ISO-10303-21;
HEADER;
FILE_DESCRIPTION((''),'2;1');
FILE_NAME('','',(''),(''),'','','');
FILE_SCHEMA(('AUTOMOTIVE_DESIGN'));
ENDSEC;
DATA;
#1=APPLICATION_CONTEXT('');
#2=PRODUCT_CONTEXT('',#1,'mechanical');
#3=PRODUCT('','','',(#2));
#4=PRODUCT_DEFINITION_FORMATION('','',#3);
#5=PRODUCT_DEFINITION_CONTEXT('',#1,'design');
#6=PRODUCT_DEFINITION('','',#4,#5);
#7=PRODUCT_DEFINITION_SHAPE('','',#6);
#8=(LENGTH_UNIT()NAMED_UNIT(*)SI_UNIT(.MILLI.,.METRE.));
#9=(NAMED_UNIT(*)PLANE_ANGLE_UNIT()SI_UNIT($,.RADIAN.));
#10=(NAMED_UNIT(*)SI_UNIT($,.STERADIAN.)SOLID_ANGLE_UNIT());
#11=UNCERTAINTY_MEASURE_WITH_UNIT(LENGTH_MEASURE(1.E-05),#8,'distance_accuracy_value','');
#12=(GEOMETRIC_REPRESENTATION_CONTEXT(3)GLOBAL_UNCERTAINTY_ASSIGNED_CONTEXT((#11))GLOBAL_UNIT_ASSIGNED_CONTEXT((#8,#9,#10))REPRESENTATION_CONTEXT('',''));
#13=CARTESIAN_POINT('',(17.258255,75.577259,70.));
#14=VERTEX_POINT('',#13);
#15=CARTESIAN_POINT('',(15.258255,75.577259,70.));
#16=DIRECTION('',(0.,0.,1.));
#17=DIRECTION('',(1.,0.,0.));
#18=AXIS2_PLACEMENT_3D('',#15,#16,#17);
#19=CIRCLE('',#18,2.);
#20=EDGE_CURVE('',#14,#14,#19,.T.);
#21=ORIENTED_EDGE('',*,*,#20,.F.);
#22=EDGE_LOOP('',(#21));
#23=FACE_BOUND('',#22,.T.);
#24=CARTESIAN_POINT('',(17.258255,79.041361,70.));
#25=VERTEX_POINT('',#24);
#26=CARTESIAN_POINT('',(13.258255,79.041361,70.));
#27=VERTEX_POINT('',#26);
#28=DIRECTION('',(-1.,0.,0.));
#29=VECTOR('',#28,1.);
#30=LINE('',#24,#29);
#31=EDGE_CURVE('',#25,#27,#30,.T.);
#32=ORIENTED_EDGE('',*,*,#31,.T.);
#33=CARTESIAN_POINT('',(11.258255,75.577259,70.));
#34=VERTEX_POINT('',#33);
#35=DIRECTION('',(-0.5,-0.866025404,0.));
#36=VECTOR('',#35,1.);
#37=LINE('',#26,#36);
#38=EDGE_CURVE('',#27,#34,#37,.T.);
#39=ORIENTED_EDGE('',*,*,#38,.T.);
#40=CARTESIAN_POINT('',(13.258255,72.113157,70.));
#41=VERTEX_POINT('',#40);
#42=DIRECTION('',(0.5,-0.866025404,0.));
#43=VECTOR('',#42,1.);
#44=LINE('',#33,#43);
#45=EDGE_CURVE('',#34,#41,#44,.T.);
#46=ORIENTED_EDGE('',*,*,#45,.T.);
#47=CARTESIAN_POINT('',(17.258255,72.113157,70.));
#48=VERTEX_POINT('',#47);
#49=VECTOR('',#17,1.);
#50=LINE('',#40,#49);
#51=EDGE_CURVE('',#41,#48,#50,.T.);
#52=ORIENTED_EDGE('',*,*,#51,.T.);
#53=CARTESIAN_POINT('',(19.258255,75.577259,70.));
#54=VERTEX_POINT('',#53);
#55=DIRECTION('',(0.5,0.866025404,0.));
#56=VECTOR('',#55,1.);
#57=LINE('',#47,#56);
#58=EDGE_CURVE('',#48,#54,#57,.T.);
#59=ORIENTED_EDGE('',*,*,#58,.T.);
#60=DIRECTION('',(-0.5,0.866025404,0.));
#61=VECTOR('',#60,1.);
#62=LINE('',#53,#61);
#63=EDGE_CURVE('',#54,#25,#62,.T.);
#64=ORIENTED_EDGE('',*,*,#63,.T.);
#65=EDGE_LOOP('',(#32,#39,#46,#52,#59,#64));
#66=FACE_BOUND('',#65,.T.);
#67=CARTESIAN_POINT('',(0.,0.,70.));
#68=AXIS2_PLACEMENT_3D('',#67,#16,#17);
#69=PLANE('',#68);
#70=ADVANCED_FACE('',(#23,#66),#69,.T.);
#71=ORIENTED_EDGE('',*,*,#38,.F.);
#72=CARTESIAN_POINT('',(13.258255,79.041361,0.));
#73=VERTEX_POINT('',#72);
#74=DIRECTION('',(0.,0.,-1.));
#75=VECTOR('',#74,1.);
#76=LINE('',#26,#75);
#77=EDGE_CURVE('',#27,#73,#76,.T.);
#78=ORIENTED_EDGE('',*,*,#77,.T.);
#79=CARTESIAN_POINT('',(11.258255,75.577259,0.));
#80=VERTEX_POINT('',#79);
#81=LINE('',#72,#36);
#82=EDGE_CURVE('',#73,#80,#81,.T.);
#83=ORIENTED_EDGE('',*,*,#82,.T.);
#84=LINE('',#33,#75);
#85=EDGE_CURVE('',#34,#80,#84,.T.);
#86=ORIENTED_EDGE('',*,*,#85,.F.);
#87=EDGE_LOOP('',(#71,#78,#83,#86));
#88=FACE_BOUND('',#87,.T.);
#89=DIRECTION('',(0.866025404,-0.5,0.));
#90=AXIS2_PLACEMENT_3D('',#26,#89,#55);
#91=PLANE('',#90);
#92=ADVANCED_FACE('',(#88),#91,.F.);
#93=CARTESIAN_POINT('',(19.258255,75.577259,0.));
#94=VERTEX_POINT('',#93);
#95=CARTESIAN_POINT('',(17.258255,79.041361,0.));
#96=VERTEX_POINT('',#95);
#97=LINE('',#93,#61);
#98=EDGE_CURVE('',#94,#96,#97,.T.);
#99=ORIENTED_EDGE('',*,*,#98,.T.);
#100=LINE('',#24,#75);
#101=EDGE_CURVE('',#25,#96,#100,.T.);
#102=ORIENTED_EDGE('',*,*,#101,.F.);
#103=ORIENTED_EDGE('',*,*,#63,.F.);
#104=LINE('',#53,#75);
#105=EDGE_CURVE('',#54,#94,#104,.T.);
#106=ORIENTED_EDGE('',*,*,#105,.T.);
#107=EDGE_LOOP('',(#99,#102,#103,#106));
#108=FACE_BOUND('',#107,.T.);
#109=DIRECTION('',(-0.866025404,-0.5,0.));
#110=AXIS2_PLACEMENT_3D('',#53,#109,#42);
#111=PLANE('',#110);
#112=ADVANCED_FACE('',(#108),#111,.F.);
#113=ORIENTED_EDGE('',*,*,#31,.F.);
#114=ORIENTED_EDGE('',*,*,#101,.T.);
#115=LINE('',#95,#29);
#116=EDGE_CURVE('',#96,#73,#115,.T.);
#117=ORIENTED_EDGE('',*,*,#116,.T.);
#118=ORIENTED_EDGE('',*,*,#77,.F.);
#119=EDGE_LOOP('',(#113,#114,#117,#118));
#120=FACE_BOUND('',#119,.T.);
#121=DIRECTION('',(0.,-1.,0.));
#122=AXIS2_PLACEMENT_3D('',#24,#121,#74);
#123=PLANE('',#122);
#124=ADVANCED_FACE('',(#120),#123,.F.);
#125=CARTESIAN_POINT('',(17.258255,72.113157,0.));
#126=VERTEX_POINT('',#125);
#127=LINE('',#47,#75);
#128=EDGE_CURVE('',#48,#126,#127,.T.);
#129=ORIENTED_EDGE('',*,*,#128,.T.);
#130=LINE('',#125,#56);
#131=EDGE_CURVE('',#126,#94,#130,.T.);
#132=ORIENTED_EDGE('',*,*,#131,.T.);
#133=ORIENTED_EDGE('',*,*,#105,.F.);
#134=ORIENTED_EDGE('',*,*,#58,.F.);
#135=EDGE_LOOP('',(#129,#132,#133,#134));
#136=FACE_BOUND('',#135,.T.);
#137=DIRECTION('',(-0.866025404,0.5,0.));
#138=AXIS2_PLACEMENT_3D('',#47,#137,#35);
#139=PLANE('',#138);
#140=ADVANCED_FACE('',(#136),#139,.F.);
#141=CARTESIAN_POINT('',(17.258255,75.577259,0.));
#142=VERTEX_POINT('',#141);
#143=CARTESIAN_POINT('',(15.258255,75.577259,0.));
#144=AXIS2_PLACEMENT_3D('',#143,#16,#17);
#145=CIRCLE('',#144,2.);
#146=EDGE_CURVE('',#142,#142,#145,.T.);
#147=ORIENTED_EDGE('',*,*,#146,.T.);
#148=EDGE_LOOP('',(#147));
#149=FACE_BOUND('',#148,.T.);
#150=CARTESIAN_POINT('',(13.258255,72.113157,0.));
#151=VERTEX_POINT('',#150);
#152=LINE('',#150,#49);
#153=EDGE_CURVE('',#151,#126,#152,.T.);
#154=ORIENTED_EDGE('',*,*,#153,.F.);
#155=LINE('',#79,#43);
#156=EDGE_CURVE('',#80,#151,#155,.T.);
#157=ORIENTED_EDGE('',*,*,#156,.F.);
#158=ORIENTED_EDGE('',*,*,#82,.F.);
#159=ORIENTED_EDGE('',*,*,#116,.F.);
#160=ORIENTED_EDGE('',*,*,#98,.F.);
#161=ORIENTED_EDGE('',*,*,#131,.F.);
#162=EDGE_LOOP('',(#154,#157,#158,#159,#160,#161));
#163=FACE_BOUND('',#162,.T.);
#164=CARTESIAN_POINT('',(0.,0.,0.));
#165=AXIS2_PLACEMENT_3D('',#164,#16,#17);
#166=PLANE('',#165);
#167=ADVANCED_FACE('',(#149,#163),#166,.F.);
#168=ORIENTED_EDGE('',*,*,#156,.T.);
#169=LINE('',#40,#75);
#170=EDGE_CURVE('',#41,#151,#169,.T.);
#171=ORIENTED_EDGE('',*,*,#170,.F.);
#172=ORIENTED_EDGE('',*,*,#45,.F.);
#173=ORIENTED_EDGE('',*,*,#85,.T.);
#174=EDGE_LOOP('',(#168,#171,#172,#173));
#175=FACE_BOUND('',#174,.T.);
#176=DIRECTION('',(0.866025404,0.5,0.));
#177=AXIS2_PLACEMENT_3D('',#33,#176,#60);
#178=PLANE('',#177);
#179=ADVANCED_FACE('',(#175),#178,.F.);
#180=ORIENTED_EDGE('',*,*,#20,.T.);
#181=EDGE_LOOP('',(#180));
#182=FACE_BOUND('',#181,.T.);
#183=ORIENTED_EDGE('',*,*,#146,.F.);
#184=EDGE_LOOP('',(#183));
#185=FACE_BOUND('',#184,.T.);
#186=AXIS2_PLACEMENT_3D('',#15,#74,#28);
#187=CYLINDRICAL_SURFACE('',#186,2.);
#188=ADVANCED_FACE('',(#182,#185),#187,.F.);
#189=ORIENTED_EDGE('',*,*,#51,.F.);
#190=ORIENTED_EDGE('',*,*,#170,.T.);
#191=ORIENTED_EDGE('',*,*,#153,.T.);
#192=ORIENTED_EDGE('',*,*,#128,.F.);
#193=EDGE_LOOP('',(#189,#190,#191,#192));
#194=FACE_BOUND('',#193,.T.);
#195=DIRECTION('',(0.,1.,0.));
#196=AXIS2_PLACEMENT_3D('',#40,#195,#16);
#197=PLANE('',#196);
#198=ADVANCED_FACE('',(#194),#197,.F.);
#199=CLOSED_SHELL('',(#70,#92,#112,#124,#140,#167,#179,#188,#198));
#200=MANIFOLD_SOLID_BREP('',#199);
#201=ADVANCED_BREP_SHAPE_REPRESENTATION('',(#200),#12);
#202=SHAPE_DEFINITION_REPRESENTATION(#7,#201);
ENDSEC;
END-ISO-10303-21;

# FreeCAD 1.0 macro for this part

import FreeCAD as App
import Part
import Sketcher
from FreeCAD import Vector
Q = App.Units.Quantity


def add_polygon(sketch, points):
    """Adds a closed chain of lines whose ends are joined by coincident constraints."""
    first, n = sketch.GeometryCount, len(points)
    for a, b in zip(points, points[1:] + points[:1]):
        sketch.addGeometry(Part.LineSegment(App.Vector(*a, 0), App.Vector(*b, 0)), False)
    for i in range(n):
        sketch.addConstraint(Sketcher.Constraint("Coincident", first + i, 2, first + (i + 1) % n, 1))

doc = App.newDocument("Part")
body = doc.addObject("PartDesign::Body", "Body")

# Sketch on XY plane
sketch1 = body.newObject("Sketcher::SketchObject", "Sketch")
sketch1.AttachmentSupport = (doc.getObject("XY_Plane"), [""])
sketch1.MapMode = "FlatFace"
add_polygon(sketch1, [(19.3, 75.6), (17.3, 79), (13.3, 79), (11.3, 75.6), (13.3, 72.1), (17.3, 72.1)])  # lines 0-5
sketch1.addGeometry(Part.Circle(Vector(15.3, 75.6, 0), Vector(0, 0, 1), 2), False)  # 6
sketch1.addConstraint(Sketcher.Constraint("Horizontal", 1))
sketch1.addConstraint(Sketcher.Constraint("Horizontal", 4))
sketch1.addConstraint(Sketcher.Constraint("Parallel", 0, 3))
sketch1.addConstraint(Sketcher.Constraint("Parallel", 2, 5))
sketch1.addConstraint(Sketcher.Constraint("Horizontal", 6, 3, 2, 2))
sketch1.addConstraint(Sketcher.Constraint("Horizontal", 2, 2, 5, 2))
sketch1.addConstraint(Sketcher.Constraint("Vertical", 1, 2, 3, 2))
sketch1.addConstraint(Sketcher.Constraint("Vertical", 0, 2, 4, 2))
sketch1.addConstraint(Sketcher.Constraint("Diameter", 6, Q("4 mm")))
sketch1.addConstraint(Sketcher.Constraint("DistanceX", 1, 2, 1, 1, Q("4 mm")))
sketch1.addConstraint(Sketcher.Constraint("Angle", 0, Q("120 deg")))
sketch1.addConstraint(Sketcher.Constraint("Distance", 0, Q("4 mm")))
sketch1.addConstraint(Sketcher.Constraint("DistanceX", 6, 3, 0, 2, Q("2 mm")))
sketch1.addConstraint(Sketcher.Constraint("DistanceY", -1, 1, 6, 3, Q("75.577259 mm")))
sketch1.addConstraint(Sketcher.Constraint("DistanceX", -1, 1, 6, 3, Q("15.258255 mm")))
pad1 = body.newObject("PartDesign::Pad", "Pad")
pad1.Profile = sketch1
pad1.Length = 70

doc.recompute()
